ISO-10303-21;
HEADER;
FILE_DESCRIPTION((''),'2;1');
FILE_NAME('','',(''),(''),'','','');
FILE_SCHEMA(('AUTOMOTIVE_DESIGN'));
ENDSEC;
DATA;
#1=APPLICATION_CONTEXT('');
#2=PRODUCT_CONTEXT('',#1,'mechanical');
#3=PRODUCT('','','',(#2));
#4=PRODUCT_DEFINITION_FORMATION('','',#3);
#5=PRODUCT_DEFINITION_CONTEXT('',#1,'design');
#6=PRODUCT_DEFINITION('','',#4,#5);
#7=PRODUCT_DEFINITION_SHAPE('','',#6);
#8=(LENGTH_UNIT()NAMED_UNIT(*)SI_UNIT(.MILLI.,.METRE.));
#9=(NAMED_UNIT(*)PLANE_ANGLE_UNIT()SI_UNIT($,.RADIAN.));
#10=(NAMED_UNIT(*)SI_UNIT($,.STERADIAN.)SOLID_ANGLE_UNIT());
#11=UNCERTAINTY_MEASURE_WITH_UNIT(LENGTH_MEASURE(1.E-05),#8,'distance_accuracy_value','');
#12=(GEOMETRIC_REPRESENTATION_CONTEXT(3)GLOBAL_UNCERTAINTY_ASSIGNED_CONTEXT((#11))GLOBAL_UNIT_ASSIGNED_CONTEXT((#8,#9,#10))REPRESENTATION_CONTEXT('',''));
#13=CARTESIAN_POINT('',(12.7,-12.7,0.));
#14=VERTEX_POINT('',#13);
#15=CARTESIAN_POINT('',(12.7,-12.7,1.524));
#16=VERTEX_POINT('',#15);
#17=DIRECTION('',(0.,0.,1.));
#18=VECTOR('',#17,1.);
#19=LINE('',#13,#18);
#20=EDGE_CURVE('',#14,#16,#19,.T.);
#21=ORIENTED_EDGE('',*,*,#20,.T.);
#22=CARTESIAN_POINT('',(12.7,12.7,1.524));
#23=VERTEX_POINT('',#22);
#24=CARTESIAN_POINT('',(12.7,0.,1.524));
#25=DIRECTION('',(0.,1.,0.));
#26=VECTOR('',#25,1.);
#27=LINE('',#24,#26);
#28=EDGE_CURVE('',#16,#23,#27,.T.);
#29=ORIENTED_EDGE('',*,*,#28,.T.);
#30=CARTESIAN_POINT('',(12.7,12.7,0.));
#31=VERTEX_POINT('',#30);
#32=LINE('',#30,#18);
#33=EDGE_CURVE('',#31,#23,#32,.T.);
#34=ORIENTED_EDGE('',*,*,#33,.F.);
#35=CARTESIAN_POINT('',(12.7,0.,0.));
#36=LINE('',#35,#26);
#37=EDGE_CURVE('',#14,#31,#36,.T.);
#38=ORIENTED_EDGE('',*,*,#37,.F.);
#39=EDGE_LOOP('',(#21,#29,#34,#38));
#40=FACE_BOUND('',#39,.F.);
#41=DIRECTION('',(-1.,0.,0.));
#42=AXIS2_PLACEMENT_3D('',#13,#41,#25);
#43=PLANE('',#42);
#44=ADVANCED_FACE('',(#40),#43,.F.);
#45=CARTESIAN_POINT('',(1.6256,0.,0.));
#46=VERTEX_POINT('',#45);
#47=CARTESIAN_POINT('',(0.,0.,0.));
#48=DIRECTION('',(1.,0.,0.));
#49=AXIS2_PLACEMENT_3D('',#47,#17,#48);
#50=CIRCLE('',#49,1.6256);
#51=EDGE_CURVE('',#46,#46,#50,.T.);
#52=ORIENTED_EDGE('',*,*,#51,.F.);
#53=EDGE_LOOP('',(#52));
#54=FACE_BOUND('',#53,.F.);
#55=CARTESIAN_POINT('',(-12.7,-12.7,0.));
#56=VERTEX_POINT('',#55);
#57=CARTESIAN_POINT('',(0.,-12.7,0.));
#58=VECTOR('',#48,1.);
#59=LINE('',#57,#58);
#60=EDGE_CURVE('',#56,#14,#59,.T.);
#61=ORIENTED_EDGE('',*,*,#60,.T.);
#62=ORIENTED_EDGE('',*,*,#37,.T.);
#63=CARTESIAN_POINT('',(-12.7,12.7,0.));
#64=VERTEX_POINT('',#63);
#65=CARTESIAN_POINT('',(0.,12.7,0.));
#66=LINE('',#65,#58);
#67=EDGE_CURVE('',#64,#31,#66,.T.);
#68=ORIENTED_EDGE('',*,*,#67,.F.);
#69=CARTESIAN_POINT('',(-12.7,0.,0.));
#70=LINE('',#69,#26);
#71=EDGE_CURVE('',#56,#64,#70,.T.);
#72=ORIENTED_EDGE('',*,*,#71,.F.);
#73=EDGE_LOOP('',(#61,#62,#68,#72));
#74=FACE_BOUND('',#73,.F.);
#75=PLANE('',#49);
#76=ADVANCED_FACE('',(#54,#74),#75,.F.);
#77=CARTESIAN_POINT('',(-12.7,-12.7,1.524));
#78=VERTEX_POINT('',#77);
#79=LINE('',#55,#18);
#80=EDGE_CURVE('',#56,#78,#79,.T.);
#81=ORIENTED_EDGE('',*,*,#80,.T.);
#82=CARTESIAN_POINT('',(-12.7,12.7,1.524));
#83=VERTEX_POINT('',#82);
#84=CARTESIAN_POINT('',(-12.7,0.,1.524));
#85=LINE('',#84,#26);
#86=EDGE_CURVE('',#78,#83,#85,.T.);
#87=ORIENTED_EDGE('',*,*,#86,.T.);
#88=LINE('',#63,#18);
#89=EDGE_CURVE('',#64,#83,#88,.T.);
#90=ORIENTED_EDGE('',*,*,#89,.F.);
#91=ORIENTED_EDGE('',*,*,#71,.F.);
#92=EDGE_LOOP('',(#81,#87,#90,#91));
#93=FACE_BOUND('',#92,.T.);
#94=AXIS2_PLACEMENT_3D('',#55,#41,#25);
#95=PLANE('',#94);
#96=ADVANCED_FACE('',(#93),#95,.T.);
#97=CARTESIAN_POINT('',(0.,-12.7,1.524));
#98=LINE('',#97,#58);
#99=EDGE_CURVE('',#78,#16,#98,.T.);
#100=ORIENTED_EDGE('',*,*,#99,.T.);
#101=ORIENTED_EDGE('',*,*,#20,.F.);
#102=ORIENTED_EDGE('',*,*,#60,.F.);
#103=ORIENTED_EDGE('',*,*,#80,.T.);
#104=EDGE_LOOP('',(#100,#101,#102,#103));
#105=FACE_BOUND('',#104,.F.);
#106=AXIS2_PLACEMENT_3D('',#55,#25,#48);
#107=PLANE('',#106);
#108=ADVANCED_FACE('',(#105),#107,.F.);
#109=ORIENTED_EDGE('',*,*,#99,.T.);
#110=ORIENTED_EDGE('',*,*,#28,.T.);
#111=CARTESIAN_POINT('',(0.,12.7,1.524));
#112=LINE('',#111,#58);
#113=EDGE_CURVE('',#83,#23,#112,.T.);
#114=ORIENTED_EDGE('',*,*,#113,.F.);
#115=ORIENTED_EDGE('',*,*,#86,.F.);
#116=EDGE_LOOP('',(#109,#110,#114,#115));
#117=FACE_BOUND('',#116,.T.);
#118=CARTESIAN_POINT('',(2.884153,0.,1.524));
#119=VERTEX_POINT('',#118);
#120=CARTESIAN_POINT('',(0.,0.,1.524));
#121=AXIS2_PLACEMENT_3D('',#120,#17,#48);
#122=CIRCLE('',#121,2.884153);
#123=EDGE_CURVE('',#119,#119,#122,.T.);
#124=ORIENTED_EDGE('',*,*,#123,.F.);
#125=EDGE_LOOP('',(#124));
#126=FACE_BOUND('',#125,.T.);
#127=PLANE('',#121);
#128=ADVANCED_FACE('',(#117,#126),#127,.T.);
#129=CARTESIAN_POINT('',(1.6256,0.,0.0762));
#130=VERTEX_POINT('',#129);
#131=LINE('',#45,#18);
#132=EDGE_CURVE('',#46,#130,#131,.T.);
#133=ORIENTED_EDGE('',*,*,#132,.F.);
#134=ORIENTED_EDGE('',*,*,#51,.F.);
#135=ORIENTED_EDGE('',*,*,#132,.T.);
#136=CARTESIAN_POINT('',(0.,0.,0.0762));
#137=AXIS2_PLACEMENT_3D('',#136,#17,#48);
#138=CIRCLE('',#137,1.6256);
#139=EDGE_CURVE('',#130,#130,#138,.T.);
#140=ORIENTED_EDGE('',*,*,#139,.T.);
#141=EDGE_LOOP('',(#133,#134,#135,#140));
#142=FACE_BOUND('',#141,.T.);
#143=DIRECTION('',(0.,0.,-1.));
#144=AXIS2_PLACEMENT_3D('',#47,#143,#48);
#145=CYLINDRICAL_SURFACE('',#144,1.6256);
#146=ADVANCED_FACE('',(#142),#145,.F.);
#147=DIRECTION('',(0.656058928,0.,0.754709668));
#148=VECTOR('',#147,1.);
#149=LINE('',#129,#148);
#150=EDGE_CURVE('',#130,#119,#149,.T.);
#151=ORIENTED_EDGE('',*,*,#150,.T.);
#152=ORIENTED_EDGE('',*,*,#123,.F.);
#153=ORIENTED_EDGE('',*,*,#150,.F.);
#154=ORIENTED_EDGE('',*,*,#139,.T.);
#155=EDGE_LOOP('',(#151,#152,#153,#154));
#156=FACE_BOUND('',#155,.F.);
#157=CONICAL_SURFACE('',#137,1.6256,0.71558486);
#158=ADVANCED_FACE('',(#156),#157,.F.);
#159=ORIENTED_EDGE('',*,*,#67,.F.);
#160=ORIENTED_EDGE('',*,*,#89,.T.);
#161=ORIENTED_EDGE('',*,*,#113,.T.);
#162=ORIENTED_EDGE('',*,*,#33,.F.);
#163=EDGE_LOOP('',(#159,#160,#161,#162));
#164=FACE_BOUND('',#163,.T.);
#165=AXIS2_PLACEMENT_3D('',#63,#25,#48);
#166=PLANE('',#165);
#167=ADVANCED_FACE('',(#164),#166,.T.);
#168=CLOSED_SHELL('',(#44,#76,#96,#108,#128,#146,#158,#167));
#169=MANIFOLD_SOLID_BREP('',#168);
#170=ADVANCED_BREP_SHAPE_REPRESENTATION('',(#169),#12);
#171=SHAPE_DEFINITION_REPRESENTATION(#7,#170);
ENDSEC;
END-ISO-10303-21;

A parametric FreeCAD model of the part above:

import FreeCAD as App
import Part
import Sketcher
from FreeCAD import Vector
Q = App.Units.Quantity


def edges_at(feature, points):
    """Names of the edges that pass closest to the given points."""
    edges = feature.Shape.Edges
    near = lambda p: min(range(len(edges)), key=lambda i: edges[i].distToShape(Part.Vertex(*p))[0])
    return sorted({f"Edge{near(p) + 1}" for p in points})


def add_polygon(sketch, points):
    """Adds a closed chain of lines whose ends are joined by coincident constraints."""
    first, n = sketch.GeometryCount, len(points)
    for a, b in zip(points, points[1:] + points[:1]):
        sketch.addGeometry(Part.LineSegment(App.Vector(*a, 0), App.Vector(*b, 0)), False)
    for i in range(n):
        sketch.addConstraint(Sketcher.Constraint("Coincident", first + i, 2, first + (i + 1) % n, 1))

doc = App.newDocument("Part")
params = doc.addObject("Spreadsheet::Sheet", "Params")
for row, (alias, value) in enumerate([
    ("sketch1_width", "1 in"),
    ("sketch1_diameter", "0.128 in"),
    ("pad1_length", "0.06 in"),
    ("chamfer_size", "0.057 in"),
    ("chamfer_size2", "1.258553 mm"),
], start=1):
    params.set(f"A{row}", alias)
    params.set(f"B{row}", "=" + value)
    params.setAlias(f"B{row}", alias)

body = doc.addObject("PartDesign::Body", "Body")

sketch1 = body.newObject("Sketcher::SketchObject", "Sketch")
sketch1.AttachmentSupport = (doc.getObject("XY_Plane"), [""])
sketch1.MapMode = "FlatFace"
add_polygon(sketch1, [(-12.7, 12.7), (-12.7, -12.7), (12.7, -12.7), (12.7, 12.7)])
sketch1.addGeometry(Part.Circle(Vector(0, 0, 0), Vector(0, 0, 1), 1.6), False)
sketch1.addConstraint(Sketcher.Constraint("Vertical", 0))
sketch1.addConstraint(Sketcher.Constraint("Horizontal", 1))
sketch1.addConstraint(Sketcher.Constraint("Vertical", 2))
sketch1.addConstraint(Sketcher.Constraint("Horizontal", 3))
sketch1.addConstraint(Sketcher.Constraint("Coincident", 4, 3, -1, 1))
sketch1.addConstraint(Sketcher.Constraint("Symmetric", 0, 2, 2, 2, -1, 1))
sketch1.addConstraint(Sketcher.Constraint("Equal", 3, 0))
sketch1.addConstraint(Sketcher.Constraint("DistanceX", 1, 1, 1, 2, Q("1 in")))
sketch1.addConstraint(Sketcher.Constraint("Diameter", 4, Q("0.128 in")))
sketch1.setExpression("Constraints[11]", "Params.sketch1_width")
sketch1.setExpression("Constraints[12]", "Params.sketch1_diameter")
pad1 = body.newObject("PartDesign::Pad", "Pad")
pad1.Profile = sketch1
pad1.setExpression("Length", "Params.pad1_length")
doc.recompute()

chamfer = body.newObject("PartDesign::Chamfer", "Chamfer")
chamfer.Base = (pad1, edges_at(pad1, [(-1.626, 0, 1.524)]))
chamfer.ChamferType = "Two distances"
chamfer.setExpression("Size", "Params.chamfer_size")
chamfer.setExpression("Size2", "Params.chamfer_size2")

doc.recompute()
